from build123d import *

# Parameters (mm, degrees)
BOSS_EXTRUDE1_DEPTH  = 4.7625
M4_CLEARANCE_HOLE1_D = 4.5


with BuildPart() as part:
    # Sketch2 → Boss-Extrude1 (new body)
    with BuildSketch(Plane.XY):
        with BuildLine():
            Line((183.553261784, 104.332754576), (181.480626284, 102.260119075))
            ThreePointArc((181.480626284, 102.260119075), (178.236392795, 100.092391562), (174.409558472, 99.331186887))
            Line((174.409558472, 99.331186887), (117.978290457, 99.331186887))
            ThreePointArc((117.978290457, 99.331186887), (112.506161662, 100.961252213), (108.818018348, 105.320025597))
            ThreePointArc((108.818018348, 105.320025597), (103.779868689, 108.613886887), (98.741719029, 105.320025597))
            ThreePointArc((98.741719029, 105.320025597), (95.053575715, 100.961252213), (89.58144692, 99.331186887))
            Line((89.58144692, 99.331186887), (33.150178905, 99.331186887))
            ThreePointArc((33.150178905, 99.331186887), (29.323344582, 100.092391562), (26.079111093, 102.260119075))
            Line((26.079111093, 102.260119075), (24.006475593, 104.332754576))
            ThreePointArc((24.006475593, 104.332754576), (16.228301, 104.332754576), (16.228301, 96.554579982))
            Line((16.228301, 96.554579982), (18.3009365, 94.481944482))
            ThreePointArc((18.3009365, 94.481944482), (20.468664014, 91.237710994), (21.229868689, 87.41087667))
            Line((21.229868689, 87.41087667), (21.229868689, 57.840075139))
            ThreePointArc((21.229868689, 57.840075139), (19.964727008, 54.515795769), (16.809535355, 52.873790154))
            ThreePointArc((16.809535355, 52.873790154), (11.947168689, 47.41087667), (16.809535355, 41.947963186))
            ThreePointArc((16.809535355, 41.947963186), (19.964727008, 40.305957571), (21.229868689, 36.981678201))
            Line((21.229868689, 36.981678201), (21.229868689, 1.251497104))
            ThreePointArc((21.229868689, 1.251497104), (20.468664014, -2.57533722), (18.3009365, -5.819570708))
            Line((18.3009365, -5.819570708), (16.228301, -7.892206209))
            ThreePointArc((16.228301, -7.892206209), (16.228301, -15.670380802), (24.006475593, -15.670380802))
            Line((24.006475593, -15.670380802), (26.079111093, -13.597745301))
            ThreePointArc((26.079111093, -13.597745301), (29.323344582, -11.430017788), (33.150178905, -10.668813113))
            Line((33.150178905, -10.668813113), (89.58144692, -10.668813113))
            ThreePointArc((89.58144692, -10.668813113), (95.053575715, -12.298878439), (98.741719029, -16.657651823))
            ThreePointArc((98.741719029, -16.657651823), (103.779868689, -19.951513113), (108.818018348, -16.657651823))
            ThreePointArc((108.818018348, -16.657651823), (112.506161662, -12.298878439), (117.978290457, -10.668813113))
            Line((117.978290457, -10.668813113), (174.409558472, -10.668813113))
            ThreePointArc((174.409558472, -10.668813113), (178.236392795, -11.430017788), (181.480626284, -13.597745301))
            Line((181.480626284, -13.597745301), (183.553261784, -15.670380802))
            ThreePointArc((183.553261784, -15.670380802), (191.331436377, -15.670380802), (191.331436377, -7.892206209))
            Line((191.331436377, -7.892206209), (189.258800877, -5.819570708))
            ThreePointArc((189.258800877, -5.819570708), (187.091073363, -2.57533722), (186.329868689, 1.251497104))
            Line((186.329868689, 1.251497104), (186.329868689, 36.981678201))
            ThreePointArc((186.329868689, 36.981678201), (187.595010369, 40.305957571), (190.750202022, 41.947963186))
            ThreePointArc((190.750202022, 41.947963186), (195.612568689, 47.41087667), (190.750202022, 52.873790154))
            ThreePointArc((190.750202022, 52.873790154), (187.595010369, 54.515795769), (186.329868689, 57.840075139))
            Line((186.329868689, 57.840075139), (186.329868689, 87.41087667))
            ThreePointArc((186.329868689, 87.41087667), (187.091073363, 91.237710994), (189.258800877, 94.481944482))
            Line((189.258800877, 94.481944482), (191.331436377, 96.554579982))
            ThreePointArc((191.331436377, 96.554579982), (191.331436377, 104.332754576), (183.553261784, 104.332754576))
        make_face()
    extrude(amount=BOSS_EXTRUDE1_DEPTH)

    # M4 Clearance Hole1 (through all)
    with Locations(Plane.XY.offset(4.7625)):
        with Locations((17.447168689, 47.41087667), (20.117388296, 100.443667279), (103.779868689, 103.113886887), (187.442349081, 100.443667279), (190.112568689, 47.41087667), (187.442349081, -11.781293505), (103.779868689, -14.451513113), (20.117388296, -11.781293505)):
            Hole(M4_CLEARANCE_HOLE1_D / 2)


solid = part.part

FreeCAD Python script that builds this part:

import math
import FreeCAD as App
import Part
import Sketcher
from FreeCAD import Vector

doc = App.newDocument("Part")
body = doc.addObject("PartDesign::Body", "Body")

# Sketch on XY plane
sketch1 = body.newObject("Sketcher::SketchObject", "Sketch")
sketch1.AttachmentSupport = (doc.getObject("XY_Plane"), [""])
sketch1.MapMode = "FlatFace"
sketch1.addGeometry([
    Part.LineSegment(Vector(183.553262, 104.332755, 0), Vector(181.480626, 102.260119, 0)),  # 0
    Part.ArcOfCircle(Part.Circle(Vector(174.409558, 109.331187, 0), Vector(0, 0, 1), 10), math.radians(-90), math.radians(-45)),  # 1
    Part.LineSegment(Vector(174.409558, 99.331187, 0), Vector(117.97829, 99.331187, 0)),  # 2
    Part.ArcOfCircle(Part.Circle(Vector(117.97829, 109.331187, 0), Vector(0, 0, 1), 10), math.radians(-156.352028), math.radians(-90)),  # 3
    Part.ArcOfCircle(Part.Circle(Vector(103.779869, 103.113887, 0), Vector(0, 0, 1), 5.5), math.radians(23.647972), math.radians(156.352028)),  # 4
    Part.ArcOfCircle(Part.Circle(Vector(89.581447, 109.331187, 0), Vector(0, 0, 1), 10), math.radians(-90), math.radians(-23.647972)),  # 5
    Part.LineSegment(Vector(89.581447, 99.331187, 0), Vector(33.150179, 99.331187, 0)),  # 6
    Part.ArcOfCircle(Part.Circle(Vector(33.150179, 109.331187, 0), Vector(0, 0, 1), 10), math.radians(-135), math.radians(-90)),  # 7
    Part.LineSegment(Vector(26.079111, 102.260119, 0), Vector(24.006476, 104.332755, 0)),  # 8
    Part.ArcOfCircle(Part.Circle(Vector(20.117388, 100.443667, 0), Vector(0, 0, 1), 5.5), math.radians(45), math.radians(225)),  # 9
    Part.LineSegment(Vector(16.228301, 96.55458, 0), Vector(18.300936, 94.481944, 0)),  # 10
    Part.ArcOfCircle(Part.Circle(Vector(11.229869, 87.410877, 0), Vector(0, 0, 1), 10), math.radians(0), math.radians(45)),  # 11
    Part.LineSegment(Vector(21.229869, 87.410877, 0), Vector(21.229869, 57.840075, 0)),  # 12
    Part.ArcOfCircle(Part.Circle(Vector(16.229869, 57.840075, 0), Vector(0, 0, 1), 5), math.radians(-83.342539), math.radians(0)),  # 13
    Part.ArcOfCircle(Part.Circle(Vector(17.447169, 47.410877, 0), Vector(0, 0, 1), 5.5), math.radians(96.657461), math.radians(263.342539)),  # 14
    Part.ArcOfCircle(Part.Circle(Vector(16.229869, 36.981678, 0), Vector(0, 0, 1), 5), math.radians(0), math.radians(83.342539)),  # 15
    Part.LineSegment(Vector(21.229869, 36.981678, 0), Vector(21.229869, 1.251497, 0)),  # 16
    Part.ArcOfCircle(Part.Circle(Vector(11.229869, 1.251497, 0), Vector(0, 0, 1), 10), math.radians(-45), math.radians(0)),  # 17
    Part.LineSegment(Vector(18.300936, -5.819571, 0), Vector(16.228301, -7.892206, 0)),  # 18
    Part.ArcOfCircle(Part.Circle(Vector(20.117388, -11.781294, 0), Vector(0, 0, 1), 5.5), math.radians(135), math.radians(315)),  # 19
    Part.LineSegment(Vector(24.006476, -15.670381, 0), Vector(26.079111, -13.597745, 0)),  # 20
    Part.ArcOfCircle(Part.Circle(Vector(33.150179, -20.668813, 0), Vector(0, 0, 1), 10), math.radians(90), math.radians(135)),  # 21
    Part.LineSegment(Vector(33.150179, -10.668813, 0), Vector(89.581447, -10.668813, 0)),  # 22
    Part.ArcOfCircle(Part.Circle(Vector(89.581447, -20.668813, 0), Vector(0, 0, 1), 10), math.radians(23.647972), math.radians(90)),  # 23
    Part.ArcOfCircle(Part.Circle(Vector(103.779869, -14.451513, 0), Vector(0, 0, 1), 5.5), math.radians(-156.352028), math.radians(-23.647972)),  # 24
    Part.ArcOfCircle(Part.Circle(Vector(117.97829, -20.668813, 0), Vector(0, 0, 1), 10), math.radians(90), math.radians(156.352028)),  # 25
    Part.LineSegment(Vector(117.97829, -10.668813, 0), Vector(174.409558, -10.668813, 0)),  # 26
    Part.ArcOfCircle(Part.Circle(Vector(174.409558, -20.668813, 0), Vector(0, 0, 1), 10), math.radians(45), math.radians(90)),  # 27
    Part.LineSegment(Vector(181.480626, -13.597745, 0), Vector(183.553262, -15.670381, 0)),  # 28
    Part.ArcOfCircle(Part.Circle(Vector(187.442349, -11.781294, 0), Vector(0, 0, 1), 5.5), math.radians(-135), math.radians(45)),  # 29
    Part.LineSegment(Vector(191.331436, -7.892206, 0), Vector(189.258801, -5.819571, 0)),  # 30
    Part.ArcOfCircle(Part.Circle(Vector(196.329869, 1.251497, 0), Vector(0, 0, 1), 10), math.radians(180), math.radians(225)),  # 31
    Part.LineSegment(Vector(186.329869, 1.251497, 0), Vector(186.329869, 36.981678, 0)),  # 32
    Part.ArcOfCircle(Part.Circle(Vector(191.329869, 36.981678, 0), Vector(0, 0, 1), 5), math.radians(96.657461), math.radians(180)),  # 33
    Part.ArcOfCircle(Part.Circle(Vector(190.112569, 47.410877, 0), Vector(0, 0, 1), 5.5), math.radians(-83.342539), math.radians(83.342539)),  # 34
    Part.ArcOfCircle(Part.Circle(Vector(191.329869, 57.840075, 0), Vector(0, 0, 1), 5), math.radians(180), math.radians(263.342539)),  # 35
    Part.LineSegment(Vector(186.329869, 57.840075, 0), Vector(186.329869, 87.410877, 0)),  # 36
    Part.ArcOfCircle(Part.Circle(Vector(196.329869, 87.410877, 0), Vector(0, 0, 1), 10), math.radians(135), math.radians(180)),  # 37
    Part.LineSegment(Vector(189.258801, 94.481944, 0), Vector(191.331436, 96.55458, 0)),  # 38
    Part.ArcOfCircle(Part.Circle(Vector(187.442349, 100.443667, 0), Vector(0, 0, 1), 5.5), math.radians(-45), math.radians(135)),  # 39
], False)
sketch1.addConstraint([
    Sketcher.Constraint("Tangent", 0, 2, 1, 2),
    Sketcher.Constraint("Tangent", 1, 1, 2, 1),
    Sketcher.Constraint("Tangent", 2, 2, 3, 2),
    Sketcher.Constraint("Tangent", 3, 1, 4, 1),
    Sketcher.Constraint("Tangent", 4, 2, 5, 2),
    Sketcher.Constraint("Tangent", 5, 1, 6, 1),
    Sketcher.Constraint("Tangent", 6, 2, 7, 2),
    Sketcher.Constraint("Tangent", 7, 1, 8, 1),
    Sketcher.Constraint("Tangent", 8, 2, 9, 1),
    Sketcher.Constraint("Tangent", 9, 2, 10, 1),
    Sketcher.Constraint("Tangent", 10, 2, 11, 2),
    Sketcher.Constraint("Tangent", 11, 1, 12, 1),
    Sketcher.Constraint("Tangent", 12, 2, 13, 2),
    Sketcher.Constraint("Tangent", 13, 1, 14, 1),
    Sketcher.Constraint("Tangent", 14, 2, 15, 2),
    Sketcher.Constraint("Tangent", 15, 1, 16, 1),
    Sketcher.Constraint("Tangent", 16, 2, 17, 2),
    Sketcher.Constraint("Tangent", 17, 1, 18, 1),
    Sketcher.Constraint("Tangent", 18, 2, 19, 1),
    Sketcher.Constraint("Tangent", 19, 2, 20, 1),
    Sketcher.Constraint("Tangent", 20, 2, 21, 2),
    Sketcher.Constraint("Tangent", 21, 1, 22, 1),
    Sketcher.Constraint("Tangent", 22, 2, 23, 2),
    Sketcher.Constraint("Tangent", 23, 1, 24, 1),
    Sketcher.Constraint("Tangent", 24, 2, 25, 2),
    Sketcher.Constraint("Tangent", 25, 1, 26, 1),
    Sketcher.Constraint("Tangent", 26, 2, 27, 2),
    Sketcher.Constraint("Tangent", 27, 1, 28, 1),
    Sketcher.Constraint("Tangent", 28, 2, 29, 1),
    Sketcher.Constraint("Tangent", 29, 2, 30, 1),
    Sketcher.Constraint("Tangent", 30, 2, 31, 2),
    Sketcher.Constraint("Tangent", 31, 1, 32, 1),
    Sketcher.Constraint("Tangent", 32, 2, 33, 2),
    Sketcher.Constraint("Tangent", 33, 1, 34, 1),
    Sketcher.Constraint("Tangent", 34, 2, 35, 2),
    Sketcher.Constraint("Tangent", 35, 1, 36, 1),
    Sketcher.Constraint("Tangent", 36, 2, 37, 2),
    Sketcher.Constraint("Tangent", 37, 1, 38, 1),
    Sketcher.Constraint("Tangent", 38, 2, 39, 1),
    Sketcher.Constraint("Tangent", 39, 2, 0, 1),
    Sketcher.Constraint("Horizontal", 2),
    Sketcher.Constraint("Horizontal", 6),
    Sketcher.Constraint("Vertical", 12),
    Sketcher.Constraint("Vertical", 16),
    Sketcher.Constraint("Horizontal", 22),
    Sketcher.Constraint("Horizontal", 26),
    Sketcher.Constraint("Vertical", 32),
    Sketcher.Constraint("Vertical", 36),
    Sketcher.Constraint("Equal", 1, 3),
    Sketcher.Constraint("Equal", 3, 5),
    Sketcher.Constraint("Equal", 5, 7),
    Sketcher.Constraint("Equal", 4, 9),
    Sketcher.Constraint("Equal", 7, 11),
    Sketcher.Constraint("Equal", 9, 14),
    Sketcher.Constraint("Equal", 13, 15),
    Sketcher.Constraint("Equal", 11, 17),
    Sketcher.Constraint("Equal", 14, 19),
    Sketcher.Constraint("Equal", 17, 21),
    Sketcher.Constraint("Equal", 21, 23),
    Sketcher.Constraint("Equal", 19, 24),
    Sketcher.Constraint("Equal", 23, 25),
    Sketcher.Constraint("Equal", 25, 27),
    Sketcher.Constraint("Equal", 24, 29),
    Sketcher.Constraint("Equal", 27, 31),
    Sketcher.Constraint("Equal", 15, 33),
    Sketcher.Constraint("Equal", 29, 34),
    Sketcher.Constraint("Equal", 33, 35),
    Sketcher.Constraint("Equal", 31, 37),
    Sketcher.Constraint("Equal", 34, 39),
    Sketcher.Constraint("Perpendicular", 0, 8),
    Sketcher.Constraint("Parallel", 8, 10),
    Sketcher.Constraint("Perpendicular", 10, 18),
    Sketcher.Constraint("Parallel", 18, 20),
    Sketcher.Constraint("Perpendicular", 20, 28),
    Sketcher.Constraint("Parallel", 28, 30),
    Sketcher.Constraint("Perpendicular", 30, 38),
    Sketcher.Constraint("Horizontal", 3, 3, 5, 3),
    Sketcher.Constraint("Horizontal", 23, 3, 25, 3),
    Sketcher.Constraint("Horizontal", 19, 3, 29, 3),
    Sketcher.Constraint("Horizontal", 17, 3, 31, 3),
    Sketcher.Constraint("Horizontal", 15, 3, 33, 3),
    Sketcher.Constraint("Horizontal", 14, 3, 34, 3),
    Sketcher.Constraint("Horizontal", 13, 3, 35, 3),
    Sketcher.Constraint("Horizontal", 11, 3, 37, 3),
    Sketcher.Constraint("Horizontal", 9, 3, 39, 3),
    Sketcher.Constraint("Horizontal", 0, 2, 7, 1),
    Sketcher.Constraint("Vertical", 13, 3, 15, 3),
    Sketcher.Constraint("Vertical", 9, 3, 19, 3),
    Sketcher.Constraint("Vertical", 7, 3, 21, 3),
    Sketcher.Constraint("Vertical", 5, 3, 23, 3),
    Sketcher.Constraint("Vertical", 4, 3, 24, 3),
    Sketcher.Constraint("Equal", 2, 6),
    Sketcher.Constraint("Equal", 8, 10),
    Sketcher.Constraint("Radius", 1, 10.0),
    Sketcher.Constraint("Radius", 13, 5.0),
    Sketcher.Constraint("Radius", 4, 5.5),
    Sketcher.Constraint("DistanceY", 12, 2, 12, 1, 29.570802),
    Sketcher.Constraint("DistanceX", 2, 2, 2, 1, 56.431268),
    Sketcher.Constraint("DistanceY", 16, 2, 16, 1, 35.730181),
    Sketcher.Constraint("DistanceX", -1, 1, 9, 2, 16.228301),
    Sketcher.Constraint("DistanceX", -1, 1, 30, 2, 189.258801),
    Sketcher.Constraint("Distance", 0, 2.931149),
    Sketcher.Constraint("DistanceX", -1, 1, 14, 3, 17.447169),
    Sketcher.Constraint("DistanceY", -1, 1, 15, 3, 36.981678),
])
pad1 = body.newObject("PartDesign::Pad", "Pad")
pad1.Profile = sketch1
pad1.Length = 4.7625

# Sketch on XY plane
sketch2 = body.newObject("Sketcher::SketchObject", "Sketch001")
sketch2.AttachmentSupport = (doc.getObject("XY_Plane"), [""])
sketch2.MapMode = "FlatFace"
sketch2.AttachmentOffset = App.Placement(Vector(0, 0, 4.7625), App.Rotation())
sketch2.addGeometry([
    Part.Circle(Vector(17.447169, 47.410877, 0), Vector(0, 0, 1), 2.25),  # 0
    Part.Circle(Vector(20.117388, 100.443667, 0), Vector(0, 0, 1), 2.25),  # 1
    Part.Circle(Vector(103.779869, 103.113887, 0), Vector(0, 0, 1), 2.25),  # 2
    Part.Circle(Vector(187.442349, 100.443667, 0), Vector(0, 0, 1), 2.25),  # 3
    Part.Circle(Vector(190.112569, 47.410877, 0), Vector(0, 0, 1), 2.25),  # 4
    Part.Circle(Vector(187.442349, -11.781294, 0), Vector(0, 0, 1), 2.25),  # 5
    Part.Circle(Vector(103.779869, -14.451513, 0), Vector(0, 0, 1), 2.25),  # 6
    Part.Circle(Vector(20.117388, -11.781294, 0), Vector(0, 0, 1), 2.25),  # 7
], False)
sketch2.addConstraint([
    Sketcher.Constraint("Equal", 0, 1),
    Sketcher.Constraint("Equal", 1, 2),
    Sketcher.Constraint("Equal", 2, 3),
    Sketcher.Constraint("Equal", 3, 4),
    Sketcher.Constraint("Equal", 4, 5),
    Sketcher.Constraint("Equal", 5, 6),
    Sketcher.Constraint("Equal", 6, 7),
    Sketcher.Constraint("Horizontal", 1, 3, 3, 3),
    Sketcher.Constraint("Horizontal", 0, 3, 4, 3),
    Sketcher.Constraint("Horizontal", 5, 3, 7, 3),
    Sketcher.Constraint("Vertical", 3, 3, 5, 3),
    Sketcher.Constraint("Vertical", 2, 3, 6, 3),
    Sketcher.Constraint("Vertical", 1, 3, 7, 3),
    Sketcher.Constraint("Diameter", 0, 4.5),
    Sketcher.Constraint("DistanceX", 0, 3, 2, 3, 86.3327),
    Sketcher.Constraint("DistanceX", 2, 3, 4, 3, 86.3327),
    Sketcher.Constraint("DistanceY", 6, 3, 2, 3, 117.5654),
    Sketcher.Constraint("DistanceX", -1, 1, 0, 3, 17.447169),
    Sketcher.Constraint("DistanceX", -1, 1, 1, 3, 20.117388),
    Sketcher.Constraint("DistanceX", -1, 1, 3, 3, 187.442349),
    Sketcher.Constraint("DistanceY", 0, 3, 1, 3, 53.032791),
    Sketcher.Constraint("DistanceY", 1, 3, 2, 3, 2.67022),
    Sketcher.Constraint("DistanceY", 5, 3, 4, 3, 59.19217),
    Sketcher.Constraint("DistanceY", -1, 1, 0, 3, 47.410877),
])
doc.recompute()
hole = body.newObject("PartDesign::Hole", "Hole")
hole.Profile = sketch2
hole.ThreadType = "None"
hole.Diameter = 4.5
hole.DepthType = "ThroughAll"

doc.recompute()
